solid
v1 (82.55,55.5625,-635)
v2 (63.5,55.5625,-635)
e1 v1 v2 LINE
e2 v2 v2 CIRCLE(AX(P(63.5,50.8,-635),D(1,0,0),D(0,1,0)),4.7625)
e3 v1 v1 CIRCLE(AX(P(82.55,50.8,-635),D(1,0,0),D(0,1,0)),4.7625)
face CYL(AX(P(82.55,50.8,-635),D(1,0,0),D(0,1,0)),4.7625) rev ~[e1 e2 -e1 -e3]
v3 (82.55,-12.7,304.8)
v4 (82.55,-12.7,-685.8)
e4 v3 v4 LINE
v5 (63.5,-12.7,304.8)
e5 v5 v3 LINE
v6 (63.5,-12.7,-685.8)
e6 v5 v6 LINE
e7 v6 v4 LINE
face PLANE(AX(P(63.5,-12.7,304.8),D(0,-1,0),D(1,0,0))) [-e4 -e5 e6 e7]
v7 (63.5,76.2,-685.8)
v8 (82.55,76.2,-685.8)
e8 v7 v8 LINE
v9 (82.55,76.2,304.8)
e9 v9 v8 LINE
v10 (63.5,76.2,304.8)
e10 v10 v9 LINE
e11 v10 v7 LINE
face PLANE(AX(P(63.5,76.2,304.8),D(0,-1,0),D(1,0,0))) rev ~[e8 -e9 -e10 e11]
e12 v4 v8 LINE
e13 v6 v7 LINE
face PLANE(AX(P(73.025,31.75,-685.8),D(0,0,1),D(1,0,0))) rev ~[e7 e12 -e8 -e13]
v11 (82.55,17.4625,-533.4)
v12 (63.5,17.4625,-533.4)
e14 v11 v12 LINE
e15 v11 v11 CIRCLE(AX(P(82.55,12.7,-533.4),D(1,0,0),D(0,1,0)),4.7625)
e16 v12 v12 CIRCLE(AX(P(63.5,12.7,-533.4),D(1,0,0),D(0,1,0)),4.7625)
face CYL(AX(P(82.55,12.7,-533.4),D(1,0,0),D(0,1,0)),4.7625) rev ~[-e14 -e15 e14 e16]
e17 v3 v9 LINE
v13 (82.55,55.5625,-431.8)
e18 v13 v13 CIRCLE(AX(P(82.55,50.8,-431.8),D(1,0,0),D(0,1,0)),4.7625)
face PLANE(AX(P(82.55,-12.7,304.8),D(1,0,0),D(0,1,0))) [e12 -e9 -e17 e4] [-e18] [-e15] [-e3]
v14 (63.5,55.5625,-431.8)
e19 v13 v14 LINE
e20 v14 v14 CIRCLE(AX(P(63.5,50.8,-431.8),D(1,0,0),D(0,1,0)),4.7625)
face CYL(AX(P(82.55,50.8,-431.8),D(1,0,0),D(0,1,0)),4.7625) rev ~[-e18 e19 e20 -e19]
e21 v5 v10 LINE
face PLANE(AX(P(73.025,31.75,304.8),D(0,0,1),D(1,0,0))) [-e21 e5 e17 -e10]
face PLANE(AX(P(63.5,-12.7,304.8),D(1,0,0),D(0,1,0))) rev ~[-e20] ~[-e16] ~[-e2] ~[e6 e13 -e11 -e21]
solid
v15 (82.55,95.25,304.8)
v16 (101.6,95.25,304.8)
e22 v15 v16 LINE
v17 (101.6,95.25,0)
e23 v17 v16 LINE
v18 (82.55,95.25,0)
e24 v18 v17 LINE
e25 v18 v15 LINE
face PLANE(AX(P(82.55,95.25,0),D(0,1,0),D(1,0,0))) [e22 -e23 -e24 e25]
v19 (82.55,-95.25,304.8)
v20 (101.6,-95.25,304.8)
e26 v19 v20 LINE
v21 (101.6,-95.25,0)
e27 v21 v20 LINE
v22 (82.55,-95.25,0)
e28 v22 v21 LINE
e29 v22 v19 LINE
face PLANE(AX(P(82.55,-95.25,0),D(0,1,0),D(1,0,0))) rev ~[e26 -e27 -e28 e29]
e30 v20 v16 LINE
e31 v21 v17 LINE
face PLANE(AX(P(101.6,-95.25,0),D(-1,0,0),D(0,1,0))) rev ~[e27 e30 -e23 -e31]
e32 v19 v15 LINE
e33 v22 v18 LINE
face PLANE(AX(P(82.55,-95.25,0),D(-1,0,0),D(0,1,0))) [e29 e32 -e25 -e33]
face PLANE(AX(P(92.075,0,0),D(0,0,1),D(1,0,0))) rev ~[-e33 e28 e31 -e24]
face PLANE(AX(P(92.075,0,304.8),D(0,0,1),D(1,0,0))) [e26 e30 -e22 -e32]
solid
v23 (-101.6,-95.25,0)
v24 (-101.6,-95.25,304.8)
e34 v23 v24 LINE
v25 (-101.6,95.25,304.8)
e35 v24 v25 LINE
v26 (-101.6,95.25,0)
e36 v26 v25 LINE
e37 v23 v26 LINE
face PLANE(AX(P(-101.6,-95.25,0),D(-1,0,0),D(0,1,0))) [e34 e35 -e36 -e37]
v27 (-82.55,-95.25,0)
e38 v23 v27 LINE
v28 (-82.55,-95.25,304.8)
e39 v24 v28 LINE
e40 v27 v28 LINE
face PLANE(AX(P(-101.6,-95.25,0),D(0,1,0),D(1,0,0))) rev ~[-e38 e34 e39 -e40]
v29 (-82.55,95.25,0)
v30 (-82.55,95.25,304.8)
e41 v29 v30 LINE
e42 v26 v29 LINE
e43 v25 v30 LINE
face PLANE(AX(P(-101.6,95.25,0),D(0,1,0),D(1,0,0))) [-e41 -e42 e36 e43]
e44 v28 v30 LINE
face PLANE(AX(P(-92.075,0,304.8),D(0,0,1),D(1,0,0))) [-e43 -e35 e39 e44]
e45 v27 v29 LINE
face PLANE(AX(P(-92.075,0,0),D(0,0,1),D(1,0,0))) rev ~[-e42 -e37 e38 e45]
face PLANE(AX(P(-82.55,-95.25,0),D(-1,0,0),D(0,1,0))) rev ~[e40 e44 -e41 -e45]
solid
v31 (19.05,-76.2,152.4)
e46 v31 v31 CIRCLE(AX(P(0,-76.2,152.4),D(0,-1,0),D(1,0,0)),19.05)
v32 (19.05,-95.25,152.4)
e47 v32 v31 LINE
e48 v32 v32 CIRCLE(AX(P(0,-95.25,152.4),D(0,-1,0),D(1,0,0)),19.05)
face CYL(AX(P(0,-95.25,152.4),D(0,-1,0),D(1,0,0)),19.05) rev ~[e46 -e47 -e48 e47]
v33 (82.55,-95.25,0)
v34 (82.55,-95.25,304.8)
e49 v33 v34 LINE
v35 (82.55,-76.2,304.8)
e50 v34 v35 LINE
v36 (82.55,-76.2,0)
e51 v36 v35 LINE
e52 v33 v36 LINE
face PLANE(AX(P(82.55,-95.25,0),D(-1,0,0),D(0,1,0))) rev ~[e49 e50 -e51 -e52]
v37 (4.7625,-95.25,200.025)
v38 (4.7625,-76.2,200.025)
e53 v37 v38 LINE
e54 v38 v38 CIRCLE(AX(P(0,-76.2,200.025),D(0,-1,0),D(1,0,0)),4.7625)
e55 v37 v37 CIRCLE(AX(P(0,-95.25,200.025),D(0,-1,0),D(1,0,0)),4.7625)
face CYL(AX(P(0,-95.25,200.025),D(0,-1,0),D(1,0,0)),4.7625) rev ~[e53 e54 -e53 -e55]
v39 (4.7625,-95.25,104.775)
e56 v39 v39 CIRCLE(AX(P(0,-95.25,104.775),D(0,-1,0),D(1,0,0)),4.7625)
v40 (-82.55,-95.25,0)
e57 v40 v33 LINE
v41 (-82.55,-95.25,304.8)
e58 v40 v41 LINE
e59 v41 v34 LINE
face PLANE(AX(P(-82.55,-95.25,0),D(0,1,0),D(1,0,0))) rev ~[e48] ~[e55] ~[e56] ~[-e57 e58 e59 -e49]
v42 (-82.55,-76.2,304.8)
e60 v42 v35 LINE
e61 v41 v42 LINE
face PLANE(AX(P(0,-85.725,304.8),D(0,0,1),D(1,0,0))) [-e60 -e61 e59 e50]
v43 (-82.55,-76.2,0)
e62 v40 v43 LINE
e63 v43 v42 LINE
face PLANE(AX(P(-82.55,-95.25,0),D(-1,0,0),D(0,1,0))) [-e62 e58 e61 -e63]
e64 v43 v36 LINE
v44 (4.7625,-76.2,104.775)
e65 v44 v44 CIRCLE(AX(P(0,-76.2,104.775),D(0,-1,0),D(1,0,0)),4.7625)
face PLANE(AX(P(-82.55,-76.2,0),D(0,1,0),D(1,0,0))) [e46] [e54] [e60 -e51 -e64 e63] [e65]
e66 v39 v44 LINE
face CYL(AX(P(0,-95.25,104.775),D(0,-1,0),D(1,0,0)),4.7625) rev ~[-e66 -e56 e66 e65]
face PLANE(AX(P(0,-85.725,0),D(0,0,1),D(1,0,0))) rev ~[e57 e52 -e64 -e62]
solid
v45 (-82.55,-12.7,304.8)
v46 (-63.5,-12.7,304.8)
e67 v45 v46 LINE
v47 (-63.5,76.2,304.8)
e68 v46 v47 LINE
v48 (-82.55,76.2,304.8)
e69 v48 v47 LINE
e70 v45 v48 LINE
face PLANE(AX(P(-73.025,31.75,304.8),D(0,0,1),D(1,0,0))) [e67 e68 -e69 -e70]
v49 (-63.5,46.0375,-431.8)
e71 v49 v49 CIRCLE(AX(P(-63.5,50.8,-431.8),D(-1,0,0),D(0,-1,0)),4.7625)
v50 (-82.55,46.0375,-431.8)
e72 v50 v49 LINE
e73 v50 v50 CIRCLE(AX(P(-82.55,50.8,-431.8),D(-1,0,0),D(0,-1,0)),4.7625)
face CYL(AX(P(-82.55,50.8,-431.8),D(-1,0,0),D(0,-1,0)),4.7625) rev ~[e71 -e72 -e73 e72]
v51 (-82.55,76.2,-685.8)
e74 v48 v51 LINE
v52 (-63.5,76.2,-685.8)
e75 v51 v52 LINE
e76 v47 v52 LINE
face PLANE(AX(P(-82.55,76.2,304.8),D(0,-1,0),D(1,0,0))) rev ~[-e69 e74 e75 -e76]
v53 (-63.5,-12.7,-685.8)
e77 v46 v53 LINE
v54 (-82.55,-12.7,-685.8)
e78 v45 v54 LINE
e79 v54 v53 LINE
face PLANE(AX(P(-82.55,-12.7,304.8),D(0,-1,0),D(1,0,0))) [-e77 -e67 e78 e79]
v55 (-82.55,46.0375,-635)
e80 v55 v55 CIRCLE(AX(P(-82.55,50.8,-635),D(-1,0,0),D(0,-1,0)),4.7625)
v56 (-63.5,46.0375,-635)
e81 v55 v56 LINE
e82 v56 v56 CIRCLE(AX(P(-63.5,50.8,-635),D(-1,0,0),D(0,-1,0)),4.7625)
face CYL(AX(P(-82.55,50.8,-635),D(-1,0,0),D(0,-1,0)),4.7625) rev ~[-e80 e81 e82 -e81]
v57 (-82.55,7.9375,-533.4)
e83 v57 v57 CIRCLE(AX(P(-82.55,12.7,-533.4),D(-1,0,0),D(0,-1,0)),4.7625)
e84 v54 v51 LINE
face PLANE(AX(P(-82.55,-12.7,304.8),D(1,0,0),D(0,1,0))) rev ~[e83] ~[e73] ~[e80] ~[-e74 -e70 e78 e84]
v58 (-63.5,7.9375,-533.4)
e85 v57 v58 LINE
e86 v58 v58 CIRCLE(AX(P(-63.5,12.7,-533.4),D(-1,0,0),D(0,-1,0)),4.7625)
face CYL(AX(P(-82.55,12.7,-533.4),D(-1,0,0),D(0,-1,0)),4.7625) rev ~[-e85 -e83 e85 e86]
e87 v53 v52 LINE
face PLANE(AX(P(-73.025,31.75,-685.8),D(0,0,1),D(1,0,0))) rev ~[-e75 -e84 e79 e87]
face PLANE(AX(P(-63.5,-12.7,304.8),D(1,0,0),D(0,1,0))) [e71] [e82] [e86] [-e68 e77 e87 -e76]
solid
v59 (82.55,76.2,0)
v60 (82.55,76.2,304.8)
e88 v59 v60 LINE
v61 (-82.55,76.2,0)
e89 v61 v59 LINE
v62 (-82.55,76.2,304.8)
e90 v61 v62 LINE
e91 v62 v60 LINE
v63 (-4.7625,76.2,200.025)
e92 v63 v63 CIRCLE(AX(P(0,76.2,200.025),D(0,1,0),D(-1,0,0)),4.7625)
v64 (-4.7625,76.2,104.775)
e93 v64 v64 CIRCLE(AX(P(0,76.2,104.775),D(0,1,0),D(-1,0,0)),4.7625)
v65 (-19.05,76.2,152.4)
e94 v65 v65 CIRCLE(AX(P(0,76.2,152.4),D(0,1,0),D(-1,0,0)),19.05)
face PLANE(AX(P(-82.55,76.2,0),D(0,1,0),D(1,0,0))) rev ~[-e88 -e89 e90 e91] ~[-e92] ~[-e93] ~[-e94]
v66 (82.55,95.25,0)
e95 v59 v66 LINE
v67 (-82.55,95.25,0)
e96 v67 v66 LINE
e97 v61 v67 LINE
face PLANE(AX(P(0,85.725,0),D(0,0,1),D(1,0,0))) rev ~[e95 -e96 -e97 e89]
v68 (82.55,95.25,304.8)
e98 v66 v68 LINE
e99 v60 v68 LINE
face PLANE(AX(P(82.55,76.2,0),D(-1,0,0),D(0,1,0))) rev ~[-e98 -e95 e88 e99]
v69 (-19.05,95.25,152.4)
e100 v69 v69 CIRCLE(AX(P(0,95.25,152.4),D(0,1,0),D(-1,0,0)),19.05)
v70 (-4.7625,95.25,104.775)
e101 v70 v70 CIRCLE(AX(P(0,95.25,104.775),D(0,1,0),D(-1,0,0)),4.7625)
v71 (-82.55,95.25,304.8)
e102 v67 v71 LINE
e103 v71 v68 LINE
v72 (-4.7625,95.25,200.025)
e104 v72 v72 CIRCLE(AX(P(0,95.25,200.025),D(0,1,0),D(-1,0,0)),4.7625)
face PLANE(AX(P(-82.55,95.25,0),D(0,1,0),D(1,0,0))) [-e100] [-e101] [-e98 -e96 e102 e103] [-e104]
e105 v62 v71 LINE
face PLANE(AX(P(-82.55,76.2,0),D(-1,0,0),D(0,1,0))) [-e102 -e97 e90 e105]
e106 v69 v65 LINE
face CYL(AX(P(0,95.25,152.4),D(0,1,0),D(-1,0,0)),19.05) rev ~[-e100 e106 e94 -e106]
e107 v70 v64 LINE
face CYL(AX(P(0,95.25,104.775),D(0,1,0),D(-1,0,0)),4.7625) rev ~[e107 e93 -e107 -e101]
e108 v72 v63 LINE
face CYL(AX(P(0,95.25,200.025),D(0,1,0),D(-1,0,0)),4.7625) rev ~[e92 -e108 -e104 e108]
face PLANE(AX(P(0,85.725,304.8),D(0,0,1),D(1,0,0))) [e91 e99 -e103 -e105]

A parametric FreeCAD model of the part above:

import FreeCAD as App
import Part
import Sketcher
from FreeCAD import Vector
Q = App.Units.Quantity

doc = App.newDocument("Part")
params = doc.addObject("Spreadsheet::Sheet", "Params")
for row, (alias, value) in enumerate([
    ("sketch1_height", "7.5 in"),
    ("sketch1_width", "0.75 in"),
    ("pad1_length", "12 in"),
    ("sketch2_width", "6.5 in"),
    ("sketch2_height", "0.75 in"),
    ("pad2_length", "12 in"),
    ("sketch3_diameter", "1.5 in"),
    ("sketch3_diameter2", "0.375 in"),
    ("pocket1_length", "1 in"),
    ("sketch4_diameter", "1.5 in"),
    ("sketch4_diameter2", "0.375 in"),
    ("pocket2_length", "1 in"),
    ("sketch5_height", "3.5 in"),
    ("sketch5_width", "0.75 in"),
    ("pad3_length", "39 in"),
    ("sketch6_diameter", "0.375 in"),
    ("pocket3_length", "1 in"),
    ("sketch7_diameter", "0.375 in"),
    ("pocket4_length", "1 in"),
], start=1):
    params.set(f"A{row}", alias)
    params.set(f"B{row}", "=" + value)
    params.setAlias(f"B{row}", alias)

body = doc.addObject("PartDesign::Body", "Body")
body.AllowCompound = True

# Sketch on XY plane
sketch1 = body.newObject("Sketcher::SketchObject", "Sketch")
sketch1.AttachmentSupport = (doc.getObject("XY_Plane"), [""])
sketch1.MapMode = "FlatFace"
sketch1.addGeometry([
    Part.LineSegment(Vector(82.55, 95.25, 0), Vector(82.55, -95.25, 0)),  # 0
    Part.LineSegment(Vector(82.55, -95.25, 0), Vector(101.6, -95.25, 0)),  # 1
    Part.LineSegment(Vector(101.6, -95.25, 0), Vector(101.6, 95.25, 0)),  # 2
    Part.LineSegment(Vector(101.6, 95.25, 0), Vector(82.55, 95.25, 0)),  # 3
    Part.LineSegment(Vector(-101.6, 95.25, 0), Vector(-101.6, -95.25, 0)),  # 4
    Part.LineSegment(Vector(-101.6, -95.25, 0), Vector(-82.55, -95.25, 0)),  # 5
    Part.LineSegment(Vector(-82.55, -95.25, 0), Vector(-82.55, 95.25, 0)),  # 6
    Part.LineSegment(Vector(-82.55, 95.25, 0), Vector(-101.6, 95.25, 0)),  # 7
], False)
sketch1.addConstraint([
    Sketcher.Constraint("Coincident", 0, 2, 1, 1),
    Sketcher.Constraint("Coincident", 1, 2, 2, 1),
    Sketcher.Constraint("Coincident", 2, 2, 3, 1),
    Sketcher.Constraint("Coincident", 3, 2, 0, 1),
    Sketcher.Constraint("Coincident", 4, 2, 5, 1),
    Sketcher.Constraint("Coincident", 5, 2, 6, 1),
    Sketcher.Constraint("Coincident", 6, 2, 7, 1),
    Sketcher.Constraint("Coincident", 7, 2, 4, 1),
    Sketcher.Constraint("Vertical", 0),
    Sketcher.Constraint("Horizontal", 1),
    Sketcher.Constraint("Vertical", 2),
    Sketcher.Constraint("Horizontal", 3),
    Sketcher.Constraint("Vertical", 4),
    Sketcher.Constraint("Horizontal", 5),
    Sketcher.Constraint("Vertical", 6),
    Sketcher.Constraint("Horizontal", 7),
    Sketcher.Constraint("Symmetric", 2, 2, 4, 2, -1, 1),
    Sketcher.Constraint("Symmetric", 0, 2, 6, 2, -1, 1),
    Sketcher.Constraint("Horizontal", 1, 2, 4, 2),
    Sketcher.Constraint("DistanceY", 0, 2, 0, 1, Q("7.5 in")),
    Sketcher.Constraint("DistanceX", -1, 1, 1, 2, Q("4 in")),
    Sketcher.Constraint("DistanceX", 1, 1, 1, 2, Q("0.75 in")),
])
sketch1.setExpression("Constraints[19]", "Params.sketch1_height")
sketch1.setExpression("Constraints[21]", "Params.sketch1_width")
pad1 = body.newObject("PartDesign::Pad", "Pad")
pad1.Profile = sketch1
pad1.setExpression("Length", "Params.pad1_length")
body2 = doc.addObject("PartDesign::Body", "Body001")
body2.AllowCompound = True

# Sketch on XY plane
sketch2 = body2.newObject("Sketcher::SketchObject", "Sketch001")
sketch2.AttachmentSupport = (doc.getObject("XY_Plane001"), [""])
sketch2.MapMode = "FlatFace"
sketch2.addGeometry([
    Part.LineSegment(Vector(-82.55, -76.2, 0), Vector(-82.55, -95.25, 0)),  # 0
    Part.LineSegment(Vector(-82.55, -95.25, 0), Vector(82.55, -95.25, 0)),  # 1
    Part.LineSegment(Vector(82.55, -95.25, 0), Vector(82.55, -76.2, 0)),  # 2
    Part.LineSegment(Vector(82.55, -76.2, 0), Vector(-82.55, -76.2, 0)),  # 3
    Part.LineSegment(Vector(-82.55, 95.25, 0), Vector(-82.55, 76.2, 0)),  # 4
    Part.LineSegment(Vector(-82.55, 76.2, 0), Vector(82.55, 76.2, 0)),  # 5
    Part.LineSegment(Vector(82.55, 76.2, 0), Vector(82.55, 95.25, 0)),  # 6
    Part.LineSegment(Vector(82.55, 95.25, 0), Vector(-82.55, 95.25, 0)),  # 7
], False)
sketch2.addConstraint([
    Sketcher.Constraint("Coincident", 0, 2, 1, 1),
    Sketcher.Constraint("Coincident", 1, 2, 2, 1),
    Sketcher.Constraint("Coincident", 2, 2, 3, 1),
    Sketcher.Constraint("Coincident", 3, 2, 0, 1),
    Sketcher.Constraint("Coincident", 4, 2, 5, 1),
    Sketcher.Constraint("Coincident", 5, 2, 6, 1),
    Sketcher.Constraint("Coincident", 6, 2, 7, 1),
    Sketcher.Constraint("Coincident", 7, 2, 4, 1),
    Sketcher.Constraint("Vertical", 0),
    Sketcher.Constraint("Horizontal", 1),
    Sketcher.Constraint("Vertical", 2),
    Sketcher.Constraint("Horizontal", 3),
    Sketcher.Constraint("Vertical", 4),
    Sketcher.Constraint("Horizontal", 5),
    Sketcher.Constraint("Vertical", 6),
    Sketcher.Constraint("Horizontal", 7),
    Sketcher.Constraint("Symmetric", 2, 2, 4, 2, -1, 1),
    Sketcher.Constraint("Symmetric", 0, 2, 6, 2, -1, 1),
    Sketcher.Constraint("Vertical", 3, 2, 4, 2),
    Sketcher.Constraint("DistanceX", 1, 1, 1, 2, Q("6.5 in")),
    Sketcher.Constraint("DistanceY", 2, 2, -1, 1, Q("3 in")),
    Sketcher.Constraint("DistanceY", 0, 2, 0, 1, Q("0.75 in")),
])
sketch2.setExpression("Constraints[19]", "Params.sketch2_width")
sketch2.setExpression("Constraints[21]", "Params.sketch2_height")
pad2 = body2.newObject("PartDesign::Pad", "Pad001")
pad2.Profile = sketch2
pad2.setExpression("Length", "Params.pad2_length")

# Sketch on XZ plane
sketch3 = body2.newObject("Sketcher::SketchObject", "Sketch002")
sketch3.AttachmentSupport = (doc.getObject("XZ_Plane001"), [""])
sketch3.MapMode = "FlatFace"
sketch3.AttachmentOffset = App.Placement(Vector(0, 0, -3.75 * 25.4), App.Rotation())
sketch3.addGeometry([
    Part.Circle(Vector(0, 200.025, 0), Vector(0, 0, 1), 4.7625),
    Part.Circle(Vector(0, 152.4, 0), Vector(0, 0, 1), 19.05),
    Part.Circle(Vector(0, 104.775, 0), Vector(0, 0, 1), 4.7625),
], False)
sketch3.addConstraint([
    Sketcher.Constraint("Equal", 0, 2),
    Sketcher.Constraint("PointOnObject", 0, 3, -2),
    Sketcher.Constraint("PointOnObject", 1, 3, -2),
    Sketcher.Constraint("PointOnObject", 2, 3, -2),
    Sketcher.Constraint("Diameter", 1, Q("1.5 in")),
    Sketcher.Constraint("Diameter", 0, Q("0.375 in")),
    Sketcher.Constraint("DistanceY", -1, 1, 1, 3, Q("6 in")),
    Sketcher.Constraint("DistanceY", 2, 3, 0, 3, Q("3.75 in")),
    Sketcher.Constraint("DistanceY", -1, 1, 0, 3, Q("7.875 in")),
])
sketch3.setExpression("Constraints[4]", "Params.sketch3_diameter")
sketch3.setExpression("Constraints[5]", "Params.sketch3_diameter2")
pocket1 = body2.newObject("PartDesign::Pocket", "Pocket")
pocket1.Profile = sketch3
pocket1.setExpression("Length", "Params.pocket1_length")
pocket1.Reversed = True

# Sketch on XZ plane
sketch4 = body2.newObject("Sketcher::SketchObject", "Sketch003")
sketch4.AttachmentSupport = (doc.getObject("XZ_Plane001"), [""])
sketch4.MapMode = "FlatFace"
sketch4.AttachmentOffset = App.Placement(Vector(0, 0, 3.75 * 25.4), App.Rotation())
sketch4.addGeometry([
    Part.Circle(Vector(0, 104.775, 0), Vector(0, 0, 1), 4.7625),
    Part.Circle(Vector(0, 152.4, 0), Vector(0, 0, 1), 19.05),
    Part.Circle(Vector(0, 200.025, 0), Vector(0, 0, 1), 4.7625),
], False)
sketch4.addConstraint([
    Sketcher.Constraint("Equal", 0, 2),
    Sketcher.Constraint("PointOnObject", 0, 3, -2),
    Sketcher.Constraint("PointOnObject", 1, 3, -2),
    Sketcher.Constraint("PointOnObject", 2, 3, -2),
    Sketcher.Constraint("Diameter", 1, Q("1.5 in")),
    Sketcher.Constraint("Diameter", 0, Q("0.375 in")),
    Sketcher.Constraint("DistanceY", -1, 1, 1, 3, Q("6 in")),
    Sketcher.Constraint("DistanceY", 0, 3, 2, 3, Q("3.75 in")),
    Sketcher.Constraint("DistanceY", -1, 1, 0, 3, Q("4.125 in")),
])
sketch4.setExpression("Constraints[4]", "Params.sketch4_diameter")
sketch4.setExpression("Constraints[5]", "Params.sketch4_diameter2")
pocket2 = body2.newObject("PartDesign::Pocket", "Pocket001")
pocket2.Profile = sketch4
pocket2.setExpression("Length", "Params.pocket2_length")
body3 = doc.addObject("PartDesign::Body", "Body002")
body3.AllowCompound = True

# Sketch on XY plane
sketch5 = body3.newObject("Sketcher::SketchObject", "Sketch004")
sketch5.AttachmentSupport = (doc.getObject("XY_Plane002"), [""])
sketch5.MapMode = "FlatFace"
sketch5.AttachmentOffset = App.Placement(Vector(0, 0, 12 * 25.4), App.Rotation())
sketch5.addGeometry([
    Part.LineSegment(Vector(-82.55, 76.2, 0), Vector(-82.55, -12.7, 0)),  # 0
    Part.LineSegment(Vector(-82.55, -12.7, 0), Vector(-63.5, -12.7, 0)),  # 1
    Part.LineSegment(Vector(-63.5, -12.7, 0), Vector(-63.5, 76.2, 0)),  # 2
    Part.LineSegment(Vector(-63.5, 76.2, 0), Vector(-82.55, 76.2, 0)),  # 3
    Part.LineSegment(Vector(63.5, 76.2, 0), Vector(63.5, -12.7, 0)),  # 4
    Part.LineSegment(Vector(63.5, -12.7, 0), Vector(82.55, -12.7, 0)),  # 5
    Part.LineSegment(Vector(82.55, -12.7, 0), Vector(82.55, 76.2, 0)),  # 6
    Part.LineSegment(Vector(82.55, 76.2, 0), Vector(63.5, 76.2, 0)),  # 7
], False)
sketch5.addConstraint([
    Sketcher.Constraint("Coincident", 0, 2, 1, 1),
    Sketcher.Constraint("Coincident", 1, 2, 2, 1),
    Sketcher.Constraint("Coincident", 2, 2, 3, 1),
    Sketcher.Constraint("Coincident", 3, 2, 0, 1),
    Sketcher.Constraint("Coincident", 4, 2, 5, 1),
    Sketcher.Constraint("Coincident", 5, 2, 6, 1),
    Sketcher.Constraint("Coincident", 6, 2, 7, 1),
    Sketcher.Constraint("Coincident", 7, 2, 4, 1),
    Sketcher.Constraint("Vertical", 0),
    Sketcher.Constraint("Horizontal", 1),
    Sketcher.Constraint("Vertical", 2),
    Sketcher.Constraint("Horizontal", 3),
    Sketcher.Constraint("Vertical", 4),
    Sketcher.Constraint("Horizontal", 5),
    Sketcher.Constraint("Vertical", 6),
    Sketcher.Constraint("Horizontal", 7),
    Sketcher.Constraint("Symmetric", 1, 2, 4, 2, -2),
    Sketcher.Constraint("Symmetric", 3, 2, 6, 2, -2),
    Sketcher.Constraint("DistanceY", 0, 2, 0, 1, Q("3.5 in")),
    Sketcher.Constraint("DistanceY", -1, 1, 2, 2, Q("3 in")),
    Sketcher.Constraint("DistanceX", 1, 2, 4, 2, Q("5 in")),
    Sketcher.Constraint("DistanceX", 1, 1, 1, 2, Q("0.75 in")),
])
sketch5.setExpression("Constraints[18]", "Params.sketch5_height")
sketch5.setExpression("Constraints[21]", "Params.sketch5_width")
pad3 = body3.newObject("PartDesign::Pad", "Pad002")
pad3.Profile = sketch5
pad3.setExpression("Length", "Params.pad3_length")
pad3.Reversed = True

# Sketch on YZ plane
sketch6 = body3.newObject("Sketcher::SketchObject", "Sketch005")
sketch6.AttachmentSupport = (doc.getObject("YZ_Plane002"), [""])
sketch6.MapMode = "FlatFace"
sketch6.AttachmentOffset = App.Placement(Vector(0, 0, 3.25 * 25.4), App.Rotation())
sketch6.addGeometry([
    Part.Circle(Vector(50.8, -635, 0), Vector(0, 0, 1), 4.7625),
    Part.Circle(Vector(12.7, -533.4, 0), Vector(0, 0, 1), 4.7625),
    Part.Circle(Vector(50.8, -431.8, 0), Vector(0, 0, 1), 4.7625),
], False)
sketch6.addConstraint([
    Sketcher.Constraint("Equal", 0, 1),
    Sketcher.Constraint("Equal", 1, 2),
    Sketcher.Constraint("Vertical", 0, 3, 2, 3),
    Sketcher.Constraint("Diameter", 0, Q("0.375 in")),
    Sketcher.Constraint("DistanceX", -1, 1, 0, 3, Q("2 in")),
    Sketcher.Constraint("DistanceY", 0, 3, -1, 1, Q("25 in")),
    Sketcher.Constraint("DistanceY", 1, 3, -1, 1, Q("21 in")),
    Sketcher.Constraint("DistanceY", 2, 3, -1, 1, Q("17 in")),
    Sketcher.Constraint("DistanceX", -1, 1, 1, 3, Q("0.5 in")),
])
sketch6.setExpression("Constraints[3]", "Params.sketch6_diameter")
pocket3 = body3.newObject("PartDesign::Pocket", "Pocket002")
pocket3.Profile = sketch6
pocket3.setExpression("Length", "Params.pocket3_length")

# Sketch on YZ plane
sketch7 = body3.newObject("Sketcher::SketchObject", "Sketch006")
sketch7.AttachmentSupport = (doc.getObject("YZ_Plane002"), [""])
sketch7.MapMode = "FlatFace"
sketch7.AttachmentOffset = App.Placement(Vector(0, 0, -3.25 * 25.4), App.Rotation())
sketch7.addGeometry([
    Part.Circle(Vector(50.8, -431.8, 0), Vector(0, 0, 1), 4.7625),
    Part.Circle(Vector(50.8, -635, 0), Vector(0, 0, 1), 4.7625),
    Part.Circle(Vector(12.7, -533.4, 0), Vector(0, 0, 1), 4.7625),
], False)
sketch7.addConstraint([
    Sketcher.Constraint("Equal", 0, 1),
    Sketcher.Constraint("Equal", 1, 2),
    Sketcher.Constraint("Vertical", 0, 3, 1, 3),
    Sketcher.Constraint("Diameter", 0, Q("0.375 in")),
    Sketcher.Constraint("DistanceX", -1, 1, 0, 3, Q("2 in")),
    Sketcher.Constraint("DistanceY", 0, 3, -1, 1, Q("17 in")),
    Sketcher.Constraint("DistanceY", 1, 3, -1, 1, Q("25 in")),
    Sketcher.Constraint("DistanceY", 2, 3, -1, 1, Q("21 in")),
    Sketcher.Constraint("DistanceX", -1, 1, 2, 3, Q("0.5 in")),
])
sketch7.setExpression("Constraints[3]", "Params.sketch7_diameter")
pocket4 = body3.newObject("PartDesign::Pocket", "Pocket003")
pocket4.Profile = sketch7
pocket4.setExpression("Length", "Params.pocket4_length")
pocket4.Reversed = True

doc.recompute()
